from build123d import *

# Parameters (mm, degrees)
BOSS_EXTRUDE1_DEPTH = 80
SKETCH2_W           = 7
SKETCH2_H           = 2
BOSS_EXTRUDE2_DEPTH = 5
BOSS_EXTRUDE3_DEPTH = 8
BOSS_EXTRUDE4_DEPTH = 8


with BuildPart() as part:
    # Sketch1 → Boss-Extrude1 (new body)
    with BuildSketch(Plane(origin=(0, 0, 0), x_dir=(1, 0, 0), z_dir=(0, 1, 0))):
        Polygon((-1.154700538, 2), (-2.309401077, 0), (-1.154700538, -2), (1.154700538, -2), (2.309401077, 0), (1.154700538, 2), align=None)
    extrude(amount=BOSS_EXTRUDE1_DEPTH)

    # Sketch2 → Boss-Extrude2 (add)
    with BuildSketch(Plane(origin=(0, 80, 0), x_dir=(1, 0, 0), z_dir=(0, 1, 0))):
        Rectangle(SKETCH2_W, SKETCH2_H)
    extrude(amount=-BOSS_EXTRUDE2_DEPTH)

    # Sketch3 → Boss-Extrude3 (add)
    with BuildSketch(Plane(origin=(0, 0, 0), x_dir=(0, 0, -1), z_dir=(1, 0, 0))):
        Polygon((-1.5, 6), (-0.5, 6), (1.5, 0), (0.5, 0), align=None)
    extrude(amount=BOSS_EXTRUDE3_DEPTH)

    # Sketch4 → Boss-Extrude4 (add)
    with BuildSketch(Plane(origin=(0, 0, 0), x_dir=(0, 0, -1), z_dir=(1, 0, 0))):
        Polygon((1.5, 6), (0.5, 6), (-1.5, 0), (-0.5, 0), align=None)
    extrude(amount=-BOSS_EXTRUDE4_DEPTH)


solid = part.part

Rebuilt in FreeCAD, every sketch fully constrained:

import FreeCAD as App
import Part
import Sketcher

V = App.Vector
Q = App.Units.Quantity

doc = App.newDocument("Part")
params = doc.addObject("Spreadsheet::Sheet", "Params")
for row, (alias, value) in enumerate([
    ("pad1_length", "80 mm"),
    ("sketch2_width", "7 mm"),
    ("sketch2_height", "2 mm"),
    ("pad2_length", "5 mm"),
    ("sketch3_height", "1 mm"),
    ("pad3_length", "8 mm"),
    ("sketch4_height", "1 mm"),
    ("pad4_length", "8 mm"),
], start=1):
    params.set(f"A{row}", alias)
    params.set(f"B{row}", "=" + value)
    params.setAlias(f"B{row}", alias)

body = doc.addObject("PartDesign::Body", "Body")

# Sketch on XZ plane
sketch1 = doc.addObject("Sketcher::SketchObject", "Sketch")
body.addObject(sketch1)
sketch1.AttachmentSupport = (doc.XZ_Plane, [""])
sketch1.MapMode = "FlatFace"
sketch1.addGeometry(Part.LineSegment(V(-1.2, -2, 0), V(-2.3, 0, 0)), False)
sketch1.addGeometry(Part.LineSegment(V(-2.3, 0, 0), V(-1.2, 2, 0)), False)
sketch1.addGeometry(Part.LineSegment(V(-1.2, 2, 0), V(1.2, 2, 0)), False)
sketch1.addGeometry(Part.LineSegment(V(1.2, 2, 0), V(2.3, 0, 0)), False)
sketch1.addGeometry(Part.LineSegment(V(2.3, 0, 0), V(1.2, -2, 0)), False)
sketch1.addGeometry(Part.LineSegment(V(1.2, -2, 0), V(-1.2, -2, 0)), False)
sketch1.addConstraint(Sketcher.Constraint("Coincident", 0, 2, 1, 1))
sketch1.addConstraint(Sketcher.Constraint("Coincident", 1, 2, 2, 1))
sketch1.addConstraint(Sketcher.Constraint("Coincident", 2, 2, 3, 1))
sketch1.addConstraint(Sketcher.Constraint("Coincident", 3, 2, 4, 1))
sketch1.addConstraint(Sketcher.Constraint("Coincident", 4, 2, 5, 1))
sketch1.addConstraint(Sketcher.Constraint("Coincident", 5, 2, 0, 1))
sketch1.addConstraint(Sketcher.Constraint("Horizontal", 2))
sketch1.addConstraint(Sketcher.Constraint("Horizontal", 5))
sketch1.addConstraint(Sketcher.Constraint("Symmetric", 0, 2, 3, 2, -1, 1))
sketch1.addConstraint(Sketcher.Constraint("Symmetric", 1, 2, 4, 2, -1, 1))
sketch1.addConstraint(Sketcher.Constraint("PointOnObject", 0, 2, -1))
sketch1.addConstraint(Sketcher.Constraint("Parallel", 0, 3))
sketch1.addConstraint(Sketcher.Constraint("Vertical", 2, 2, 4, 2))
sketch1.addConstraint(Sketcher.Constraint("Angle", 0, Q("120 deg")))
sketch1.addConstraint(Sketcher.Constraint("DistanceY", -1, 1, 1, 2, Q("2 mm")))
sketch1.addConstraint(Sketcher.Constraint("DistanceX", 2, 1, 2, 2, Q("2.309401 mm")))
pad1 = doc.addObject("PartDesign::Pad", "Pad")
body.addObject(pad1)
pad1.Profile = sketch1
pad1.setExpression("Length", "Params.pad1_length")
pad1.Reversed = True

# Sketch on XZ plane
sketch2 = doc.addObject("Sketcher::SketchObject", "Sketch001")
body.addObject(sketch2)
sketch2.AttachmentSupport = (doc.XZ_Plane, [""])
sketch2.MapMode = "FlatFace"
sketch2.AttachmentOffset = App.Placement(V(0, 0, -80), App.Rotation())
sketch2.addGeometry(Part.LineSegment(V(-3.5, -1, 0), V(-3.5, 1, 0)), False)
sketch2.addGeometry(Part.LineSegment(V(-3.5, 1, 0), V(3.5, 1, 0)), False)
sketch2.addGeometry(Part.LineSegment(V(3.5, 1, 0), V(3.5, -1, 0)), False)
sketch2.addGeometry(Part.LineSegment(V(3.5, -1, 0), V(-3.5, -1, 0)), False)
sketch2.addConstraint(Sketcher.Constraint("Coincident", 0, 2, 1, 1))
sketch2.addConstraint(Sketcher.Constraint("Coincident", 1, 2, 2, 1))
sketch2.addConstraint(Sketcher.Constraint("Coincident", 2, 2, 3, 1))
sketch2.addConstraint(Sketcher.Constraint("Coincident", 3, 2, 0, 1))
sketch2.addConstraint(Sketcher.Constraint("Vertical", 0))
sketch2.addConstraint(Sketcher.Constraint("Horizontal", 1))
sketch2.addConstraint(Sketcher.Constraint("Vertical", 2))
sketch2.addConstraint(Sketcher.Constraint("Horizontal", 3))
sketch2.addConstraint(Sketcher.Constraint("Symmetric", 0, 2, 2, 2, -1, 1))
sketch2.addConstraint(Sketcher.Constraint("DistanceX", 1, 1, 1, 2, Q("7 mm")))
sketch2.addConstraint(Sketcher.Constraint("DistanceY", 0, 1, 0, 2, Q("2 mm")))
sketch2.setExpression("Constraints[9]", "Params.sketch2_width")
sketch2.setExpression("Constraints[10]", "Params.sketch2_height")
pad2 = doc.addObject("PartDesign::Pad", "Pad001")
body.addObject(pad2)
pad2.Profile = sketch2
pad2.setExpression("Length", "Params.pad2_length")

# Sketch on YZ plane
sketch3 = doc.addObject("Sketcher::SketchObject", "Sketch002")
body.addObject(sketch3)
sketch3.AttachmentSupport = (doc.YZ_Plane, [""])
sketch3.MapMode = "FlatFace"
sketch3.addGeometry(Part.LineSegment(V(6, 0.5, 0), V(6, 1.5, 0)), False)
sketch3.addGeometry(Part.LineSegment(V(6, 1.5, 0), V(0, -0.5, 0)), False)
sketch3.addGeometry(Part.LineSegment(V(0, -0.5, 0), V(0, -1.5, 0)), False)
sketch3.addGeometry(Part.LineSegment(V(0, -1.5, 0), V(6, 0.5, 0)), False)
sketch3.addConstraint(Sketcher.Constraint("Coincident", 0, 2, 1, 1))
sketch3.addConstraint(Sketcher.Constraint("Coincident", 1, 2, 2, 1))
sketch3.addConstraint(Sketcher.Constraint("Coincident", 2, 2, 3, 1))
sketch3.addConstraint(Sketcher.Constraint("Coincident", 3, 2, 0, 1))
sketch3.addConstraint(Sketcher.Constraint("Vertical", 0))
sketch3.addConstraint(Sketcher.Constraint("Vertical", 2))
sketch3.addConstraint(Sketcher.Constraint("PointOnObject", 1, 2, -2))
sketch3.addConstraint(Sketcher.Constraint("Parallel", 1, 3))
sketch3.addConstraint(Sketcher.Constraint("DistanceY", 0, 1, 0, 2, Q("1 mm")))
sketch3.addConstraint(Sketcher.Constraint("DistanceX", -1, 1, 0, 2, Q("6 mm")))
sketch3.addConstraint(Sketcher.Constraint("DistanceY", 1, 2, 0, 2, Q("2 mm")))
sketch3.addConstraint(Sketcher.Constraint("DistanceY", -1, 1, 0, 2, Q("1.5 mm")))
sketch3.setExpression("Constraints[8]", "Params.sketch3_height")
pad3 = doc.addObject("PartDesign::Pad", "Pad002")
body.addObject(pad3)
pad3.Profile = sketch3
pad3.setExpression("Length", "Params.pad3_length")

# Sketch on YZ plane
sketch4 = doc.addObject("Sketcher::SketchObject", "Sketch003")
body.addObject(sketch4)
sketch4.AttachmentSupport = (doc.YZ_Plane, [""])
sketch4.MapMode = "FlatFace"
sketch4.addGeometry(Part.LineSegment(V(6, -1.5, 0), V(6, -0.5, 0)), False)
sketch4.addGeometry(Part.LineSegment(V(6, -0.5, 0), V(0, 1.5, 0)), False)
sketch4.addGeometry(Part.LineSegment(V(0, 1.5, 0), V(0, 0.5, 0)), False)
sketch4.addGeometry(Part.LineSegment(V(0, 0.5, 0), V(6, -1.5, 0)), False)
sketch4.addConstraint(Sketcher.Constraint("Coincident", 0, 2, 1, 1))
sketch4.addConstraint(Sketcher.Constraint("Coincident", 1, 2, 2, 1))
sketch4.addConstraint(Sketcher.Constraint("Coincident", 2, 2, 3, 1))
sketch4.addConstraint(Sketcher.Constraint("Coincident", 3, 2, 0, 1))
sketch4.addConstraint(Sketcher.Constraint("Vertical", 0))
sketch4.addConstraint(Sketcher.Constraint("Vertical", 2))
sketch4.addConstraint(Sketcher.Constraint("PointOnObject", 1, 2, -2))
sketch4.addConstraint(Sketcher.Constraint("Parallel", 1, 3))
sketch4.addConstraint(Sketcher.Constraint("DistanceY", 0, 1, 0, 2, Q("1 mm")))
sketch4.addConstraint(Sketcher.Constraint("DistanceX", -1, 1, 0, 2, Q("6 mm")))
sketch4.addConstraint(Sketcher.Constraint("DistanceY", 0, 2, 1, 2, Q("2 mm")))
sketch4.addConstraint(Sketcher.Constraint("DistanceY", 0, 2, -1, 1, Q("0.5 mm")))
sketch4.setExpression("Constraints[8]", "Params.sketch4_height")
pad4 = doc.addObject("PartDesign::Pad", "Pad003")
body.addObject(pad4)
pad4.Profile = sketch4
pad4.setExpression("Length", "Params.pad4_length")
pad4.Reversed = True

doc.recompute()
